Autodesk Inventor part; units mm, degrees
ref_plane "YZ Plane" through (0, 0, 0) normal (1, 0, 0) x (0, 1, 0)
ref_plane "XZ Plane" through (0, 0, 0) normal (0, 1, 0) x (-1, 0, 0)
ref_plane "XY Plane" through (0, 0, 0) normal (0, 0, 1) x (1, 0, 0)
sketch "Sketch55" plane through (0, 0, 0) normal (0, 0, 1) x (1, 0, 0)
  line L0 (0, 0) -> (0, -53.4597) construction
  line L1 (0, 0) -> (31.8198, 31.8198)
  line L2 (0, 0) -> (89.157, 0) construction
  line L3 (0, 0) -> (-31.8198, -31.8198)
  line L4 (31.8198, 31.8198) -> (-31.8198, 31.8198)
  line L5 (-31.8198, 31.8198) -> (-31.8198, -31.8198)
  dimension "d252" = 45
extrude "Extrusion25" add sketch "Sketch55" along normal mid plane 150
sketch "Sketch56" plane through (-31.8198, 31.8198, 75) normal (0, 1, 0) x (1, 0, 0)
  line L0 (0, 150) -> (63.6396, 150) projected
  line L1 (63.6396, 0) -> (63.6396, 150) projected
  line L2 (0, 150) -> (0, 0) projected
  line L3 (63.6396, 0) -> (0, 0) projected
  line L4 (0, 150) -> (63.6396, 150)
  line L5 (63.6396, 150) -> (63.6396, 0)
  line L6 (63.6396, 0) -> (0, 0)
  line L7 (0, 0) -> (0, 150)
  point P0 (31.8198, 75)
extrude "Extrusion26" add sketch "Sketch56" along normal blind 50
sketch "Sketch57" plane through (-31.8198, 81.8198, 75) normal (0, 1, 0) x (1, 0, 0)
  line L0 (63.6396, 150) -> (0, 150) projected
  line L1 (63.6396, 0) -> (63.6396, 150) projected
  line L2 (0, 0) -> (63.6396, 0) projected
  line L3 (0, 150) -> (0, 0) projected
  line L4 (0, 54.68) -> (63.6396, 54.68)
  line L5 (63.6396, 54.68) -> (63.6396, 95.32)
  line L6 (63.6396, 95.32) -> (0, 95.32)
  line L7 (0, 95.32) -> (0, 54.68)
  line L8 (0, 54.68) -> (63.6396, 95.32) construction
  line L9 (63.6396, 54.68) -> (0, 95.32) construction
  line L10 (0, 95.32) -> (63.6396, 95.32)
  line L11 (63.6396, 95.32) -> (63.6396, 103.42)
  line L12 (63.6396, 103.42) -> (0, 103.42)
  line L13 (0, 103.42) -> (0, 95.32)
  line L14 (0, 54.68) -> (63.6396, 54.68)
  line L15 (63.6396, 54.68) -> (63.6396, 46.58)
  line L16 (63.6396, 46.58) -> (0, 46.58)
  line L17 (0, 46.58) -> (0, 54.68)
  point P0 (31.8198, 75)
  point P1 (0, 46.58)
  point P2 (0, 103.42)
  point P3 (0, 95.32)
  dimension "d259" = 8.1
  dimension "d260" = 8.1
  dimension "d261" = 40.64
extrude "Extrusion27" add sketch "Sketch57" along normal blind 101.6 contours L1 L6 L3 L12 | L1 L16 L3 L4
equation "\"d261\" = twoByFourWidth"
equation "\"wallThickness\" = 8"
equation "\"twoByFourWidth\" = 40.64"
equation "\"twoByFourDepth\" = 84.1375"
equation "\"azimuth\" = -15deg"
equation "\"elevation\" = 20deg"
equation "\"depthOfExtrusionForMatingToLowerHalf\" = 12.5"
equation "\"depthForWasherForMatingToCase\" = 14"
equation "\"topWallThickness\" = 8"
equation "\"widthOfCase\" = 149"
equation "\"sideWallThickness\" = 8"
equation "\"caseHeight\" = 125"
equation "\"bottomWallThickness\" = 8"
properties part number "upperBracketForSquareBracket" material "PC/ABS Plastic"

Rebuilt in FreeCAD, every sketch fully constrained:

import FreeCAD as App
import Part
import Sketcher

V = App.Vector
Q = App.Units.Quantity


def add_polygon(sketch, points):
    """Adds a closed chain of lines whose ends are joined by coincident constraints."""
    first, n = sketch.GeometryCount, len(points)
    for a, b in zip(points, points[1:] + points[:1]):
        sketch.addGeometry(Part.LineSegment(App.Vector(*a, 0), App.Vector(*b, 0)), False)
    for i in range(n):
        sketch.addConstraint(Sketcher.Constraint("Coincident", first + i, 2, first + (i + 1) % n, 1))

doc = App.newDocument("Part")
body = doc.addObject("PartDesign::Body", "Body")

# Sketch on XY plane
sketch1 = body.newObject("Sketcher::SketchObject", "Sketch")
sketch1.AttachmentSupport = (doc.getObject("XY_Plane"), [""])
sketch1.MapMode = "FlatFace"
add_polygon(sketch1, [(-31.8198, -31.8198), (31.8198, 31.8198), (-31.8198, 31.8198)])  # lines 0-2
sketch1.addConstraint(Sketcher.Constraint("Horizontal", 1))
sketch1.addConstraint(Sketcher.Constraint("Vertical", 2))
sketch1.addConstraint(Sketcher.Constraint("Symmetric", 0, 2, 2, 2, -1, 1))
sketch1.addConstraint(Sketcher.Constraint("Equal", 1, 2))
sketch1.addConstraint(Sketcher.Constraint("Distance", 0, Q("90 mm")))
pad1 = body.newObject("PartDesign::Pad", "Pad")
pad1.Profile = sketch1
pad1.Length = 150
pad1.Midplane = True

# Sketch on XZ plane
sketch2 = body.newObject("Sketcher::SketchObject", "Sketch001")
sketch2.AttachmentSupport = (doc.getObject("XZ_Plane"), [""])
sketch2.MapMode = "FlatFace"
sketch2.AttachmentOffset = App.Placement(V(0, 0, -31.8198), App.Rotation())
add_polygon(sketch2, [(31.8198, -75), (-31.8198, -75), (-31.8198, 75), (31.8198, 75)])  # lines 0-3
sketch2.addConstraint(Sketcher.Constraint("Horizontal", 0))
sketch2.addConstraint(Sketcher.Constraint("Vertical", 1))
sketch2.addConstraint(Sketcher.Constraint("Horizontal", 2))
sketch2.addConstraint(Sketcher.Constraint("Vertical", 3))
sketch2.addConstraint(Sketcher.Constraint("Symmetric", 0, 2, 2, 2, -1, 1))
sketch2.addConstraint(Sketcher.Constraint("DistanceY", 1, 1, 1, 2, Q("150 mm")))
sketch2.addConstraint(Sketcher.Constraint("DistanceX", 0, 2, 0, 1, Q("63.6396 mm")))
pad2 = body.newObject("PartDesign::Pad", "Pad001")
pad2.Profile = sketch2
pad2.Length = 50
pad2.Reversed = True

# Sketch on XZ plane
sketch3 = body.newObject("Sketcher::SketchObject", "Sketch002")
sketch3.AttachmentSupport = (doc.getObject("XZ_Plane"), [""])
sketch3.MapMode = "FlatFace"
sketch3.AttachmentOffset = App.Placement(V(0, 0, -81.8198), App.Rotation())
add_polygon(sketch3, [(31.8198, -20.32), (31.8198, -28.42), (-31.8198, -28.42), (-31.8198, -20.32)])  # lines 0-3
add_polygon(sketch3, [(31.8198, 28.42), (31.8198, 20.32), (-31.8198, 20.32), (-31.8198, 28.42)])  # lines 4-7
sketch3.addConstraint(Sketcher.Constraint("Vertical", 0))
sketch3.addConstraint(Sketcher.Constraint("Horizontal", 1))
sketch3.addConstraint(Sketcher.Constraint("Vertical", 2))
sketch3.addConstraint(Sketcher.Constraint("Horizontal", 3))
sketch3.addConstraint(Sketcher.Constraint("Vertical", 4))
sketch3.addConstraint(Sketcher.Constraint("Horizontal", 5))
sketch3.addConstraint(Sketcher.Constraint("Vertical", 6))
sketch3.addConstraint(Sketcher.Constraint("Horizontal", 7))
sketch3.addConstraint(Sketcher.Constraint("Symmetric", 2, 2, 4, 2, -1, 1))
sketch3.addConstraint(Sketcher.Constraint("Symmetric", 0, 2, 6, 2, -1, 1))
sketch3.addConstraint(Sketcher.Constraint("Vertical", 3, 2, 4, 2))
sketch3.addConstraint(Sketcher.Constraint("DistanceY", 0, 2, 0, 1, Q("8.1 mm")))
sketch3.addConstraint(Sketcher.Constraint("DistanceY", 3, 2, 4, 2, Q("40.64 mm")))
sketch3.addConstraint(Sketcher.Constraint("DistanceX", 1, 2, 1, 1, Q("63.6396 mm")))
pad3 = body.newObject("PartDesign::Pad", "Pad002")
pad3.Profile = sketch3
pad3.Length = 101.6
pad3.Reversed = True

doc.recompute()
